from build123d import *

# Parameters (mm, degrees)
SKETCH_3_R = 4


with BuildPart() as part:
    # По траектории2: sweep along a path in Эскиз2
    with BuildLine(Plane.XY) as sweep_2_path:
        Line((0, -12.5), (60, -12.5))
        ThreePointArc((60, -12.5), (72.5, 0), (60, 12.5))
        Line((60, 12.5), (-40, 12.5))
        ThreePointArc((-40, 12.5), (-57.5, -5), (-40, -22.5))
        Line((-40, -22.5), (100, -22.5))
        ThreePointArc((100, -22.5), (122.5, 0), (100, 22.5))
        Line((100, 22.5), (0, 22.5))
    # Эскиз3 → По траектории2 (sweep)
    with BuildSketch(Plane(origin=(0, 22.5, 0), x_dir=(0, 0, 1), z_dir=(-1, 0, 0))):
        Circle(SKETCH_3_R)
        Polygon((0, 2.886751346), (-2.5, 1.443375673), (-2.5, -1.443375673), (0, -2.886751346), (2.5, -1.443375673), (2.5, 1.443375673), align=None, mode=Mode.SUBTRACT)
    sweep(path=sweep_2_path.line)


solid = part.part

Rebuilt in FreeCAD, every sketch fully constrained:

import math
import FreeCAD as App
import Part
import Sketcher
Q = App.Units.Quantity


def add_polygon(sketch, points):
    """Adds a closed chain of lines whose ends are joined by coincident constraints."""
    first, n = sketch.GeometryCount, len(points)
    for a, b in zip(points, points[1:] + points[:1]):
        sketch.addGeometry(Part.LineSegment(App.Vector(*a, 0), App.Vector(*b, 0)), False)
    for i in range(n):
        sketch.addConstraint(Sketcher.Constraint("Coincident", first + i, 2, first + (i + 1) % n, 1))

doc = App.newDocument("Part")
body = doc.addObject("PartDesign::Body", "Body")

sketch1 = body.newObject("Sketcher::SketchObject", "Sketch")
sketch1.AttachmentSupport = (doc.getObject("YZ_Plane"), [""])
sketch1.MapMode = "FlatFace"
sketch1.addGeometry(Part.Circle(App.Vector(22.5, 0, 0), App.Vector(0, 0, 1), 4), False)
add_polygon(sketch1, [(23.9, -2.5), (25.4, 0), (23.9, 2.5), (21.1, 2.5), (19.6, 0), (21.1, -2.5)])
sketch1.addConstraint(Sketcher.Constraint("Horizontal", 3))
sketch1.addConstraint(Sketcher.Constraint("Horizontal", 6))
sketch1.addConstraint(Sketcher.Constraint("Symmetric", 3, 2, 5, 2, -1))
sketch1.addConstraint(Sketcher.Constraint("PointOnObject", 0, 3, -1))
sketch1.addConstraint(Sketcher.Constraint("PointOnObject", 1, 2, -1))
sketch1.addConstraint(Sketcher.Constraint("PointOnObject", 4, 2, -1))
sketch1.addConstraint(Sketcher.Constraint("Parallel", 1, 4))
sketch1.addConstraint(Sketcher.Constraint("Parallel", 2, 5))
sketch1.addConstraint(Sketcher.Constraint("Diameter", 0, 8.0))
sketch1.addConstraint(Sketcher.Constraint("Angle", 1, Q("60 deg")))
sketch1.addConstraint(Sketcher.Constraint("DistanceY", 5, 2, 3, 2, 5.0))
sketch1.addConstraint(Sketcher.Constraint("DistanceX", -1, 1, 0, 3, 22.5))
sketch1.addConstraint(Sketcher.Constraint("DistanceX", 3, 2, 3, 1, 2.886751))
sketch1.addConstraint(Sketcher.Constraint("DistanceX", -1, 1, 1, 2, 25.386751))

sketch2 = body.newObject("Sketcher::SketchObject", "Sketch001")
sketch2.AttachmentSupport = (doc.getObject("XY_Plane"), [""])
sketch2.MapMode = "FlatFace"
sketch2.addGeometry(Part.LineSegment(App.Vector(0, -12, 0), App.Vector(60, -12, 0)), False)
sketch2.addGeometry(Part.ArcOfCircle(Part.Circle(App.Vector(60, 0, 0), App.Vector(0, 0, 1), 12), math.radians(-90), math.radians(90)), False)
sketch2.addGeometry(Part.LineSegment(App.Vector(60, 12, 0), App.Vector(-40, 12, 0)), False)
sketch2.addGeometry(Part.ArcOfCircle(Part.Circle(App.Vector(-40, -5, 0), App.Vector(0, 0, 1), 18), math.radians(90), math.radians(270)), False)
sketch2.addGeometry(Part.LineSegment(App.Vector(-40, -22, 0), App.Vector(100, -22, 0)), False)
sketch2.addGeometry(Part.ArcOfCircle(Part.Circle(App.Vector(100, 0, 0), App.Vector(0, 0, 1), 22), math.radians(-90), math.radians(90)), False)
sketch2.addGeometry(Part.LineSegment(App.Vector(100, 22, 0), App.Vector(0, 22, 0)), False)
sketch2.addConstraint(Sketcher.Constraint("Tangent", 0, 2, 1, 1))
sketch2.addConstraint(Sketcher.Constraint("Tangent", 1, 2, 2, 1))
sketch2.addConstraint(Sketcher.Constraint("Tangent", 2, 2, 3, 1))
sketch2.addConstraint(Sketcher.Constraint("Tangent", 3, 2, 4, 1))
sketch2.addConstraint(Sketcher.Constraint("Tangent", 4, 2, 5, 1))
sketch2.addConstraint(Sketcher.Constraint("Tangent", 5, 2, 6, 1))
sketch2.addConstraint(Sketcher.Constraint("Horizontal", 0))
sketch2.addConstraint(Sketcher.Constraint("Horizontal", 2))
sketch2.addConstraint(Sketcher.Constraint("Horizontal", 4))
sketch2.addConstraint(Sketcher.Constraint("Horizontal", 6))
sketch2.addConstraint(Sketcher.Constraint("PointOnObject", 1, 3, -1))
sketch2.addConstraint(Sketcher.Constraint("PointOnObject", 5, 3, -1))
sketch2.addConstraint(Sketcher.Constraint("PointOnObject", 0, 1, -2))
sketch2.addConstraint(Sketcher.Constraint("PointOnObject", 6, 2, -2))
sketch2.addConstraint(Sketcher.Constraint("Equal", 2, 6))
sketch2.addConstraint(Sketcher.Constraint("Radius", 1, 12.5))
sketch2.addConstraint(Sketcher.Constraint("Radius", 3, 17.5))
sketch2.addConstraint(Sketcher.Constraint("DistanceX", 0, 1, 0, 2, 60.0))
sketch2.addConstraint(Sketcher.Constraint("DistanceX", 2, 2, 2, 1, 100.0))
doc.recompute()

additivepipe = body.newObject("PartDesign::AdditivePipe", "AdditivePipe")
additivepipe.Profile = sketch1
additivepipe.Spine = (sketch2, ["Edge1", "Edge2", "Edge3", "Edge4", "Edge5", "Edge6", "Edge7"])

doc.recompute()
